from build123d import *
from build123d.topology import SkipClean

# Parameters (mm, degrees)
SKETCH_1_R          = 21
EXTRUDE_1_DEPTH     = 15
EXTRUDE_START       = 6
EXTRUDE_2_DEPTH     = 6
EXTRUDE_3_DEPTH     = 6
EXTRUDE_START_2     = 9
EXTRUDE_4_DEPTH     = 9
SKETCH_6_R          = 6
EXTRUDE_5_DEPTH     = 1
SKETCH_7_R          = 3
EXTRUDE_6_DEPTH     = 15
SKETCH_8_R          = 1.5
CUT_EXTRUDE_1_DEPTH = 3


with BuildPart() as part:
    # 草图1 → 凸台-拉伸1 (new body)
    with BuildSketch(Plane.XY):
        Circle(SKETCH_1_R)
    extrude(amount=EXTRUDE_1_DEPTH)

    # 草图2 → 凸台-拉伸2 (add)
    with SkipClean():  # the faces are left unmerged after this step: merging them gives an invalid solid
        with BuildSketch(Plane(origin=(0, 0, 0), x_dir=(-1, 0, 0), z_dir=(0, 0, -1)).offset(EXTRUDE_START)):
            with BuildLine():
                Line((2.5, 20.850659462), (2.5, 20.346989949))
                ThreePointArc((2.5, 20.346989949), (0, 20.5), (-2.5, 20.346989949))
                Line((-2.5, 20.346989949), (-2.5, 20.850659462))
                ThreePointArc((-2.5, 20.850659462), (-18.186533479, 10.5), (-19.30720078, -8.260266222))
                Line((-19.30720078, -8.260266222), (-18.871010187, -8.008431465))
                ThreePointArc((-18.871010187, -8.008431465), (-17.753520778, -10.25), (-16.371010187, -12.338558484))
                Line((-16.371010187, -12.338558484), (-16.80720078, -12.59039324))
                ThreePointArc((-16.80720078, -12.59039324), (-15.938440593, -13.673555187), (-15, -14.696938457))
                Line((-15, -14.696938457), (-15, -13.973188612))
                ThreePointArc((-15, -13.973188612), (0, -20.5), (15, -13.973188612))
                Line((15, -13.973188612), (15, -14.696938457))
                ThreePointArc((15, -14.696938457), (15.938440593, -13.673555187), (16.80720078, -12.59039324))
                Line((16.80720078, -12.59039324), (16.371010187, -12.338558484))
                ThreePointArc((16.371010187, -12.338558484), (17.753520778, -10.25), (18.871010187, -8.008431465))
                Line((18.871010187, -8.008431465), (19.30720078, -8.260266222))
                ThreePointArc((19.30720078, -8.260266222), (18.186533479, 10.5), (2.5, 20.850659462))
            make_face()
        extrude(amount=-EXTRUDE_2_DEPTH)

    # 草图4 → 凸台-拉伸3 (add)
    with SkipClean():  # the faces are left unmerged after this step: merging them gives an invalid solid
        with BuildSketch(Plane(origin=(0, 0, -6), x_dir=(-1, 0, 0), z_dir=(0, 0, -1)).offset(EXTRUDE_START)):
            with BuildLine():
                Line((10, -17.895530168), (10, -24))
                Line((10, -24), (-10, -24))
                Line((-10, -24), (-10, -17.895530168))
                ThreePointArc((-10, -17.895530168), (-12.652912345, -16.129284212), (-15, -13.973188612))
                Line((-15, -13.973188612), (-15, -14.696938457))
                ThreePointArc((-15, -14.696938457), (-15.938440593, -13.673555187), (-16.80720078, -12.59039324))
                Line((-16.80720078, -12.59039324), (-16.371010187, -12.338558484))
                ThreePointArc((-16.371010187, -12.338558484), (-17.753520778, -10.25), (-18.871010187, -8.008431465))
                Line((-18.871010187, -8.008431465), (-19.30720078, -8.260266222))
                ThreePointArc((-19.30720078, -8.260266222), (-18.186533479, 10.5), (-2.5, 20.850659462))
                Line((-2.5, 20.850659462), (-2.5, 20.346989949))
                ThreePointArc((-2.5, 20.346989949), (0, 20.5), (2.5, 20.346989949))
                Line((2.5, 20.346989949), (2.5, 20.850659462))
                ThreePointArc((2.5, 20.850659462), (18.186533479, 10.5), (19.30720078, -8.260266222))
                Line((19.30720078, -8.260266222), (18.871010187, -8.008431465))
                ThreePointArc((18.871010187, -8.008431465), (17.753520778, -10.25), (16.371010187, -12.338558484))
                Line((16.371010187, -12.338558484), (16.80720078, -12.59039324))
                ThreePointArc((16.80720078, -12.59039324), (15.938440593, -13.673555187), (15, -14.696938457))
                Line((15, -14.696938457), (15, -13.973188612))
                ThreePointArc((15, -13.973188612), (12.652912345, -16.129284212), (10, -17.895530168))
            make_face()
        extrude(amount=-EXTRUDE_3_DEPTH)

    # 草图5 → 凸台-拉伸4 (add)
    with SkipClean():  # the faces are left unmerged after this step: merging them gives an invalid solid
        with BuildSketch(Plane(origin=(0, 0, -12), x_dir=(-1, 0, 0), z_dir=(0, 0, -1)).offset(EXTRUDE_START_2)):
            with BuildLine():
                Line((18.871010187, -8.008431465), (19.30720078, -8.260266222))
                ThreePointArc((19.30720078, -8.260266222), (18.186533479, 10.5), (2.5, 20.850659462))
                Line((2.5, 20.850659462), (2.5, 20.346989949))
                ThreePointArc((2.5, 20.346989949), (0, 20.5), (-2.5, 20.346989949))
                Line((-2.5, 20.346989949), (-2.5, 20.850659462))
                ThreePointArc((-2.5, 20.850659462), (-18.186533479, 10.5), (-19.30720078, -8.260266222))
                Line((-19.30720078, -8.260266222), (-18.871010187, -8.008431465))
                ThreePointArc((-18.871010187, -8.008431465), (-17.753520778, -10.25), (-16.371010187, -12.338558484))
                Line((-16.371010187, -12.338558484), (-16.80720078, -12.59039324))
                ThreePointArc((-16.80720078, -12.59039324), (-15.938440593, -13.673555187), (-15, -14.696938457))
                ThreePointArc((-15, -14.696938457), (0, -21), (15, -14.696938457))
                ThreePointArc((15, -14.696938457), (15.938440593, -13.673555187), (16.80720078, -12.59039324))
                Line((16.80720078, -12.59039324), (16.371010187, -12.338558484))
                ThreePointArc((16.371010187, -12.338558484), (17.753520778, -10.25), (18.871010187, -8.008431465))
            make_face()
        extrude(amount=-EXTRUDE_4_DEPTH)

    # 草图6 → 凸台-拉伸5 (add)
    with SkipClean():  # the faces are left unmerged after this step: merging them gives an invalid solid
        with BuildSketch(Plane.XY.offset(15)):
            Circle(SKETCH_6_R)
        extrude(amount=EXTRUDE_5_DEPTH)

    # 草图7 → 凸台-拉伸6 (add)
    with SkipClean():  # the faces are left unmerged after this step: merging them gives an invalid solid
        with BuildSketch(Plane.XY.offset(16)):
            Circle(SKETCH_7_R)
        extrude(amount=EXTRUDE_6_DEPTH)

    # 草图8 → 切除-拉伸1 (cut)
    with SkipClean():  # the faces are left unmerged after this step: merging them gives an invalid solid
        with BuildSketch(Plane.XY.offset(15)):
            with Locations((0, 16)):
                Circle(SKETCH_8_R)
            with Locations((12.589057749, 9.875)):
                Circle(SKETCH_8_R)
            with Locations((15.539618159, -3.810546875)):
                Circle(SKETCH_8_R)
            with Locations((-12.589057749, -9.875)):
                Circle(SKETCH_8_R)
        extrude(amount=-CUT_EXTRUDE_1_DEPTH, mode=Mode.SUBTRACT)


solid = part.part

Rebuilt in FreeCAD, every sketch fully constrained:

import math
import FreeCAD as App
import Part
import Sketcher

V = App.Vector
Q = App.Units.Quantity

doc = App.newDocument("Part")
params = doc.addObject("Spreadsheet::Sheet", "Params")
for row, (alias, value) in enumerate([
    ("sketch1_diameter", "42 mm"),
    ("pad1_length", "15 mm"),
    ("sketch2_radius", "21 mm"),
    ("sketch2_radius2", "20.5 mm"),
    ("pad2_length", "6 mm"),
    ("sketch3_radius", "21 mm"),
    ("sketch3_radius2", "20.5 mm"),
    ("sketch3_width", "20 mm"),
    ("pad3_length", "6 mm"),
    ("sketch4_radius", "21 mm"),
    ("sketch4_radius2", "20.5 mm"),
    ("pad4_length", "9 mm"),
    ("sketch5_diameter", "12 mm"),
    ("pad5_length", "1 mm"),
    ("sketch6_diameter", "6 mm"),
    ("pad6_length", "15 mm"),
    ("sketch7_diameter", "3 mm"),
    ("pocket1_length", "3 mm"),
], start=1):
    params.set(f"A{row}", alias)
    params.set(f"B{row}", "=" + value)
    params.setAlias(f"B{row}", alias)

body = doc.addObject("PartDesign::Body", "Body")

# Sketch on XY plane
sketch1 = body.newObject("Sketcher::SketchObject", "Sketch")
sketch1.AttachmentSupport = (doc.getObject("XY_Plane"), [""])
sketch1.MapMode = "FlatFace"
sketch1.addGeometry(Part.Circle(V(0, 0, 0), V(0, 0, 1), 21), False)
sketch1.addConstraint([
    Sketcher.Constraint("Coincident", 0, 3, -1, 1),
    Sketcher.Constraint("Diameter", 0, 42.0),
])
sketch1.setExpression("Constraints[1]", "Params.sketch1_diameter")
pad1 = body.newObject("PartDesign::Pad", "Pad")
pad1.Profile = sketch1
pad1.setExpression("Length", "Params.pad1_length")

# Sketch on XY plane
sketch2 = body.newObject("Sketcher::SketchObject", "Sketch001")
sketch2.AttachmentSupport = (doc.getObject("XY_Plane"), [""])
sketch2.MapMode = "FlatFace"
sketch2.AttachmentOffset = App.Placement(V(0, 0, -6), App.Rotation())
sketch2.addGeometry([
    Part.LineSegment(V(-2.5, 20.850659, 0), V(-2.5, 20.34699, 0)),  # 0
    Part.ArcOfCircle(Part.Circle(V(0, 0, 0), V(0, 0, 1), 20.5), math.radians(82.995274), math.radians(97.004726)),  # 1
    Part.LineSegment(V(2.5, 20.34699, 0), V(2.5, 20.850659, 0)),  # 2
    Part.ArcOfCircle(Part.Circle(V(0, 0, 0), V(0, 0, 1), 21), math.radians(-23.162859), math.radians(83.162859)),  # 3
    Part.LineSegment(V(19.307201, -8.260266, 0), V(18.87101, -8.008431, 0)),  # 4
    Part.ArcOfCircle(Part.Circle(V(0, 0, 0), V(0, 0, 1), 20.5), math.radians(-37.004726), math.radians(-22.995274)),  # 5
    Part.LineSegment(V(16.37101, -12.338558, 0), V(16.807201, -12.590393, 0)),  # 6
    Part.ArcOfCircle(Part.Circle(V(0, 0, 0), V(0, 0, 1), 21), math.radians(-44.415309), math.radians(-36.837141)),  # 7
    Part.LineSegment(V(15, -14.696938, 0), V(15, -13.973189, 0)),  # 8
    Part.ArcOfCircle(Part.Circle(V(0, 0, 0), V(0, 0, 1), 20.5), math.radians(-137.029716), math.radians(-42.970284)),  # 9
    Part.LineSegment(V(-15, -13.973189, 0), V(-15, -14.696938, 0)),  # 10
    Part.ArcOfCircle(Part.Circle(V(0, 0, 0), V(0, 0, 1), 21), math.radians(-143.162859), math.radians(-135.584691)),  # 11
    Part.LineSegment(V(-16.807201, -12.590393, 0), V(-16.37101, -12.338558, 0)),  # 12
    Part.ArcOfCircle(Part.Circle(V(0, 0, 0), V(0, 0, 1), 20.5), math.radians(-157.004726), math.radians(-142.995274)),  # 13
    Part.LineSegment(V(-18.87101, -8.008431, 0), V(-19.307201, -8.260266, 0)),  # 14
    Part.ArcOfCircle(Part.Circle(V(0, 0, 0), V(0, 0, 1), 21), math.radians(96.837141), math.radians(203.162859)),  # 15
], False)
sketch2.addConstraint([
    Sketcher.Constraint("Coincident", 0, 2, 1, 2),
    Sketcher.Constraint("Coincident", 1, 1, 2, 1),
    Sketcher.Constraint("Coincident", 2, 2, 3, 2),
    Sketcher.Constraint("Coincident", 3, 1, 4, 1),
    Sketcher.Constraint("Coincident", 4, 2, 5, 2),
    Sketcher.Constraint("Coincident", 5, 1, 6, 1),
    Sketcher.Constraint("Coincident", 6, 2, 7, 2),
    Sketcher.Constraint("Coincident", 7, 1, 8, 1),
    Sketcher.Constraint("Coincident", 8, 2, 9, 2),
    Sketcher.Constraint("Coincident", 9, 1, 10, 1),
    Sketcher.Constraint("Coincident", 10, 2, 11, 2),
    Sketcher.Constraint("Coincident", 11, 1, 12, 1),
    Sketcher.Constraint("Coincident", 12, 2, 13, 2),
    Sketcher.Constraint("Coincident", 13, 1, 14, 1),
    Sketcher.Constraint("Coincident", 14, 2, 15, 2),
    Sketcher.Constraint("Coincident", 15, 1, 0, 1),
    Sketcher.Constraint("Vertical", 0),
    Sketcher.Constraint("Vertical", 2),
    Sketcher.Constraint("Vertical", 8),
    Sketcher.Constraint("Vertical", 10),
    Sketcher.Constraint("Coincident", 1, 3, -1, 1),
    Sketcher.Constraint("Coincident", 3, 3, -1, 1),
    Sketcher.Constraint("Coincident", 5, 3, -1, 1),
    Sketcher.Constraint("Coincident", 7, 3, -1, 1),
    Sketcher.Constraint("Coincident", 9, 3, -1, 1),
    Sketcher.Constraint("Coincident", 11, 3, -1, 1),
    Sketcher.Constraint("Coincident", 13, 3, -1, 1),
    Sketcher.Constraint("Coincident", 15, 3, -1, 1),
    Sketcher.Constraint("Equal", 1, 5),
    Sketcher.Constraint("Equal", 3, 7),
    Sketcher.Constraint("Equal", 5, 9),
    Sketcher.Constraint("Equal", 7, 11),
    Sketcher.Constraint("Equal", 9, 13),
    Sketcher.Constraint("Equal", 11, 15),
    Sketcher.Constraint("Parallel", 4, 6),
    Sketcher.Constraint("Parallel", 12, 14),
    Sketcher.Constraint("Horizontal", 0, 2, 1, 1),
    Sketcher.Constraint("Horizontal", 8, 2, 9, 1),
    Sketcher.Constraint("Horizontal", 6, 2, 11, 1),
    Sketcher.Constraint("Horizontal", 5, 1, 12, 2),
    Sketcher.Constraint("Horizontal", 4, 2, 13, 1),
    Sketcher.Constraint("Equal", 4, 6),
    Sketcher.Constraint("Radius", 3, 21.0),
    Sketcher.Constraint("Radius", 1, 20.5),
    Sketcher.Constraint("Angle", 4, Q("150 deg")),
    Sketcher.Constraint("DistanceX", -1, 1, 7, 1, 15.0),
    Sketcher.Constraint("DistanceX", 0, 2, 1, 1, 5.0),
    Sketcher.Constraint("DistanceX", 5, 1, 4, 2, 2.5),
])
sketch2.setExpression("Constraints[42]", "Params.sketch2_radius")
sketch2.setExpression("Constraints[43]", "Params.sketch2_radius2")
pad2 = body.newObject("PartDesign::Pad", "Pad001")
pad2.Profile = sketch2
pad2.setExpression("Length", "Params.pad2_length")

# Sketch on XY plane
sketch3 = body.newObject("Sketcher::SketchObject", "Sketch002")
sketch3.AttachmentSupport = (doc.getObject("XY_Plane"), [""])
sketch3.MapMode = "FlatFace"
sketch3.AttachmentOffset = App.Placement(V(0, 0, -12), App.Rotation())
sketch3.addGeometry([
    Part.LineSegment(V(-10, -24, 0), V(-10, -17.89553, 0)),  # 0
    Part.ArcOfCircle(Part.Circle(V(0, 0, 0), V(0, 0, 1), 20.5), math.radians(-137.029716), math.radians(-119.196404)),  # 1
    Part.LineSegment(V(-15, -13.973189, 0), V(-15, -14.696938, 0)),  # 2
    Part.ArcOfCircle(Part.Circle(V(0, 0, 0), V(0, 0, 1), 21), math.radians(-143.162859), math.radians(-135.584691)),  # 3
    Part.LineSegment(V(-16.807201, -12.590393, 0), V(-16.37101, -12.338558, 0)),  # 4
    Part.ArcOfCircle(Part.Circle(V(0, 0, 0), V(0, 0, 1), 20.5), math.radians(-157.004726), math.radians(-142.995274)),  # 5
    Part.LineSegment(V(-18.87101, -8.008431, 0), V(-19.307201, -8.260266, 0)),  # 6
    Part.ArcOfCircle(Part.Circle(V(0, 0, 0), V(0, 0, 1), 21), math.radians(96.837141), math.radians(203.162859)),  # 7
    Part.LineSegment(V(-2.5, 20.850659, 0), V(-2.5, 20.34699, 0)),  # 8
    Part.ArcOfCircle(Part.Circle(V(0, 0, 0), V(0, 0, 1), 20.5), math.radians(82.995274), math.radians(97.004726)),  # 9
    Part.LineSegment(V(2.5, 20.34699, 0), V(2.5, 20.850659, 0)),  # 10
    Part.ArcOfCircle(Part.Circle(V(0, 0, 0), V(0, 0, 1), 21), math.radians(-23.162859), math.radians(83.162859)),  # 11
    Part.LineSegment(V(19.307201, -8.260266, 0), V(18.87101, -8.008431, 0)),  # 12
    Part.ArcOfCircle(Part.Circle(V(0, 0, 0), V(0, 0, 1), 20.5), math.radians(-37.004726), math.radians(-22.995274)),  # 13
    Part.LineSegment(V(16.37101, -12.338558, 0), V(16.807201, -12.590393, 0)),  # 14
    Part.ArcOfCircle(Part.Circle(V(0, 0, 0), V(0, 0, 1), 21), math.radians(-44.415309), math.radians(-36.837141)),  # 15
    Part.LineSegment(V(15, -14.696938, 0), V(15, -13.973189, 0)),  # 16
    Part.ArcOfCircle(Part.Circle(V(0, 0, 0), V(0, 0, 1), 20.5), math.radians(-60.803596), math.radians(-42.970284)),  # 17
    Part.LineSegment(V(10, -17.89553, 0), V(10, -24, 0)),  # 18
    Part.LineSegment(V(10, -24, 0), V(-10, -24, 0)),  # 19
], False)
sketch3.addConstraint([
    Sketcher.Constraint("Coincident", 0, 2, 1, 2),
    Sketcher.Constraint("Coincident", 1, 1, 2, 1),
    Sketcher.Constraint("Coincident", 2, 2, 3, 2),
    Sketcher.Constraint("Coincident", 3, 1, 4, 1),
    Sketcher.Constraint("Coincident", 4, 2, 5, 2),
    Sketcher.Constraint("Coincident", 5, 1, 6, 1),
    Sketcher.Constraint("Coincident", 6, 2, 7, 2),
    Sketcher.Constraint("Coincident", 7, 1, 8, 1),
    Sketcher.Constraint("Coincident", 8, 2, 9, 2),
    Sketcher.Constraint("Coincident", 9, 1, 10, 1),
    Sketcher.Constraint("Coincident", 10, 2, 11, 2),
    Sketcher.Constraint("Coincident", 11, 1, 12, 1),
    Sketcher.Constraint("Coincident", 12, 2, 13, 2),
    Sketcher.Constraint("Coincident", 13, 1, 14, 1),
    Sketcher.Constraint("Coincident", 14, 2, 15, 2),
    Sketcher.Constraint("Coincident", 15, 1, 16, 1),
    Sketcher.Constraint("Coincident", 16, 2, 17, 2),
    Sketcher.Constraint("Coincident", 17, 1, 18, 1),
    Sketcher.Constraint("Coincident", 18, 2, 19, 1),
    Sketcher.Constraint("Coincident", 19, 2, 0, 1),
    Sketcher.Constraint("Vertical", 0),
    Sketcher.Constraint("Vertical", 2),
    Sketcher.Constraint("Vertical", 8),
    Sketcher.Constraint("Vertical", 10),
    Sketcher.Constraint("Vertical", 16),
    Sketcher.Constraint("Vertical", 18),
    Sketcher.Constraint("Horizontal", 19),
    Sketcher.Constraint("Coincident", 1, 3, -1, 1),
    Sketcher.Constraint("Coincident", 3, 3, -1, 1),
    Sketcher.Constraint("Coincident", 5, 3, -1, 1),
    Sketcher.Constraint("Coincident", 7, 3, -1, 1),
    Sketcher.Constraint("Coincident", 9, 3, -1, 1),
    Sketcher.Constraint("Coincident", 11, 3, -1, 1),
    Sketcher.Constraint("Coincident", 13, 3, -1, 1),
    Sketcher.Constraint("Coincident", 15, 3, -1, 1),
    Sketcher.Constraint("Coincident", 17, 3, -1, 1),
    Sketcher.Constraint("Equal", 1, 5),
    Sketcher.Constraint("Equal", 3, 7),
    Sketcher.Constraint("Equal", 5, 9),
    Sketcher.Constraint("Equal", 7, 11),
    Sketcher.Constraint("Equal", 9, 13),
    Sketcher.Constraint("Equal", 11, 15),
    Sketcher.Constraint("Equal", 13, 17),
    Sketcher.Constraint("Parallel", 4, 6),
    Sketcher.Constraint("Parallel", 12, 14),
    Sketcher.Constraint("Horizontal", 8, 2, 9, 1),
    Sketcher.Constraint("Horizontal", 6, 2, 11, 1),
    Sketcher.Constraint("Horizontal", 5, 1, 12, 2),
    Sketcher.Constraint("Horizontal", 4, 2, 13, 1),
    Sketcher.Constraint("Horizontal", 2, 2, 15, 1),
    Sketcher.Constraint("Horizontal", 0, 2, 17, 1),
    Sketcher.Constraint("Equal", 4, 6),
    Sketcher.Constraint("Radius", 3, 21.0),
    Sketcher.Constraint("Radius", 1, 20.5),
    Sketcher.Constraint("DistanceX", 19, 2, 19, 1, 20.0),
    Sketcher.Constraint("Angle", 4, Q("30 deg")),
    Sketcher.Constraint("DistanceX", 1, 1, -1, 1, 15.0),
    Sketcher.Constraint("DistanceY", 18, 2, -1, 1, 24.0),
    Sketcher.Constraint("DistanceX", 8, 2, 9, 1, 5.0),
    Sketcher.Constraint("DistanceX", 5, 1, 4, 2, 2.5),
])
sketch3.setExpression("Constraints[52]", "Params.sketch3_radius")
sketch3.setExpression("Constraints[53]", "Params.sketch3_radius2")
sketch3.setExpression("Constraints[54]", "Params.sketch3_width")
pad3 = body.newObject("PartDesign::Pad", "Pad002")
pad3.Profile = sketch3
pad3.setExpression("Length", "Params.pad3_length")

# Sketch on XY plane
sketch4 = body.newObject("Sketcher::SketchObject", "Sketch003")
sketch4.AttachmentSupport = (doc.getObject("XY_Plane"), [""])
sketch4.MapMode = "FlatFace"
sketch4.AttachmentOffset = App.Placement(V(0, 0, -21), App.Rotation())
sketch4.addGeometry([
    Part.LineSegment(V(-18.87101, -8.008431, 0), V(-19.307201, -8.260266, 0)),  # 0
    Part.ArcOfCircle(Part.Circle(V(0, 0, 0), V(0, 0, 1), 21), math.radians(96.837141), math.radians(203.162859)),  # 1
    Part.LineSegment(V(-2.5, 20.850659, 0), V(-2.5, 20.34699, 0)),  # 2
    Part.ArcOfCircle(Part.Circle(V(0, 0, 0), V(0, 0, 1), 20.5), math.radians(82.995274), math.radians(97.004726)),  # 3
    Part.LineSegment(V(2.5, 20.34699, 0), V(2.5, 20.850659, 0)),  # 4
    Part.ArcOfCircle(Part.Circle(V(0, 0, 0), V(0, 0, 1), 21), math.radians(-23.162859), math.radians(83.162859)),  # 5
    Part.LineSegment(V(19.307201, -8.260266, 0), V(18.87101, -8.008431, 0)),  # 6
    Part.ArcOfCircle(Part.Circle(V(0, 0, 0), V(0, 0, 1), 20.5), math.radians(-37.004726), math.radians(-22.995274)),  # 7
    Part.LineSegment(V(16.37101, -12.338558, 0), V(16.807201, -12.590393, 0)),  # 8
    Part.ArcOfCircle(Part.Circle(V(0, 0, 0), V(0, 0, 1), 21), math.radians(-44.415309), math.radians(-36.837141)),  # 9
    Part.ArcOfCircle(Part.Circle(V(0, 0, 0), V(0, 0, 1), 21), math.radians(-135.584691), math.radians(-44.415309)),  # 10
    Part.ArcOfCircle(Part.Circle(V(0, 0, 0), V(0, 0, 1), 21), math.radians(-143.162859), math.radians(-135.584691)),  # 11
    Part.LineSegment(V(-16.807201, -12.590393, 0), V(-16.37101, -12.338558, 0)),  # 12
    Part.ArcOfCircle(Part.Circle(V(0, 0, 0), V(0, 0, 1), 20.5), math.radians(-157.004726), math.radians(-142.995274)),  # 13
], False)
sketch4.addConstraint([
    Sketcher.Constraint("Coincident", 0, 2, 1, 2),
    Sketcher.Constraint("Coincident", 1, 1, 2, 1),
    Sketcher.Constraint("Coincident", 2, 2, 3, 2),
    Sketcher.Constraint("Coincident", 3, 1, 4, 1),
    Sketcher.Constraint("Coincident", 4, 2, 5, 2),
    Sketcher.Constraint("Coincident", 5, 1, 6, 1),
    Sketcher.Constraint("Coincident", 6, 2, 7, 2),
    Sketcher.Constraint("Coincident", 7, 1, 8, 1),
    Sketcher.Constraint("Coincident", 8, 2, 9, 2),
    Sketcher.Constraint("Tangent", 9, 1, 10, 2),
    Sketcher.Constraint("Tangent", 10, 1, 11, 2),
    Sketcher.Constraint("Coincident", 11, 1, 12, 1),
    Sketcher.Constraint("Coincident", 12, 2, 13, 2),
    Sketcher.Constraint("Coincident", 13, 1, 0, 1),
    Sketcher.Constraint("Vertical", 2),
    Sketcher.Constraint("Vertical", 4),
    Sketcher.Constraint("Coincident", 1, 3, -1, 1),
    Sketcher.Constraint("Coincident", 3, 3, -1, 1),
    Sketcher.Constraint("Coincident", 5, 3, -1, 1),
    Sketcher.Constraint("Coincident", 7, 3, -1, 1),
    Sketcher.Constraint("Coincident", 9, 3, -1, 1),
    Sketcher.Constraint("Coincident", 11, 3, -1, 1),
    Sketcher.Constraint("Coincident", 13, 3, -1, 1),
    Sketcher.Constraint("Equal", 1, 5),
    Sketcher.Constraint("Equal", 3, 7),
    Sketcher.Constraint("Equal", 5, 9),
    Sketcher.Constraint("Equal", 7, 13),
    Sketcher.Constraint("Parallel", 6, 8),
    Sketcher.Constraint("Parallel", 0, 12),
    Sketcher.Constraint("Horizontal", 2, 2, 3, 1),
    Sketcher.Constraint("Horizontal", 0, 2, 5, 1),
    Sketcher.Constraint("Horizontal", 9, 1, 10, 1),
    Sketcher.Constraint("Horizontal", 8, 2, 11, 1),
    Sketcher.Constraint("Horizontal", 7, 1, 12, 2),
    Sketcher.Constraint("Equal", 6, 8),
    Sketcher.Constraint("Radius", 1, 21.0),
    Sketcher.Constraint("Radius", 3, 20.5),
    Sketcher.Constraint("Angle", 0, Q("-150 deg")),
    Sketcher.Constraint("DistanceX", -1, 1, 9, 1, 15.0),
    Sketcher.Constraint("DistanceX", 2, 2, 3, 1, 5.0),
    Sketcher.Constraint("DistanceX", 7, 1, 6, 2, 2.5),
])
sketch4.setExpression("Constraints[35]", "Params.sketch4_radius")
sketch4.setExpression("Constraints[36]", "Params.sketch4_radius2")
pad4 = body.newObject("PartDesign::Pad", "Pad003")
pad4.Profile = sketch4
pad4.setExpression("Length", "Params.pad4_length")

# Sketch on XY plane
sketch5 = body.newObject("Sketcher::SketchObject", "Sketch004")
sketch5.AttachmentSupport = (doc.getObject("XY_Plane"), [""])
sketch5.MapMode = "FlatFace"
sketch5.AttachmentOffset = App.Placement(V(0, 0, 15), App.Rotation())
sketch5.addGeometry(Part.Circle(V(0, 0, 0), V(0, 0, 1), 6), False)
sketch5.addConstraint([
    Sketcher.Constraint("Coincident", 0, 3, -1, 1),
    Sketcher.Constraint("Diameter", 0, 12.0),
])
sketch5.setExpression("Constraints[1]", "Params.sketch5_diameter")
pad5 = body.newObject("PartDesign::Pad", "Pad004")
pad5.Profile = sketch5
pad5.setExpression("Length", "Params.pad5_length")

# Sketch on XY plane
sketch6 = body.newObject("Sketcher::SketchObject", "Sketch005")
sketch6.AttachmentSupport = (doc.getObject("XY_Plane"), [""])
sketch6.MapMode = "FlatFace"
sketch6.AttachmentOffset = App.Placement(V(0, 0, 16), App.Rotation())
sketch6.addGeometry(Part.Circle(V(0, 0, 0), V(0, 0, 1), 3), False)
sketch6.addConstraint([
    Sketcher.Constraint("Coincident", 0, 3, -1, 1),
    Sketcher.Constraint("Diameter", 0, 6.0),
])
sketch6.setExpression("Constraints[1]", "Params.sketch6_diameter")
pad6 = body.newObject("PartDesign::Pad", "Pad005")
pad6.Profile = sketch6
pad6.setExpression("Length", "Params.pad6_length")

# Sketch on XY plane
sketch7 = body.newObject("Sketcher::SketchObject", "Sketch006")
sketch7.AttachmentSupport = (doc.getObject("XY_Plane"), [""])
sketch7.MapMode = "FlatFace"
sketch7.AttachmentOffset = App.Placement(V(0, 0, 15), App.Rotation())
sketch7.addGeometry([
    Part.Circle(V(0, 16, 0), V(0, 0, 1), 1.5),
    Part.Circle(V(12.589058, 9.875, 0), V(0, 0, 1), 1.5),
    Part.Circle(V(15.539618, -3.810547, 0), V(0, 0, 1), 1.5),
    Part.Circle(V(-12.589058, -9.875, 0), V(0, 0, 1), 1.5),
], False)
sketch7.addConstraint([
    Sketcher.Constraint("Equal", 0, 1),
    Sketcher.Constraint("Equal", 1, 2),
    Sketcher.Constraint("Equal", 2, 3),
    Sketcher.Constraint("Symmetric", 1, 3, 3, 3, -1, 1),
    Sketcher.Constraint("PointOnObject", 0, 3, -2),
    Sketcher.Constraint("Diameter", 0, 3.0),
    Sketcher.Constraint("DistanceY", -1, 1, 0, 3, 16.0),
    Sketcher.Constraint("DistanceY", 3, 3, 1, 3, 19.75),
    Sketcher.Constraint("DistanceX", -1, 1, 2, 3, 15.539618),
    Sketcher.Constraint("DistanceX", 1, 3, 2, 3, 2.95056),
    Sketcher.Constraint("DistanceY", 2, 3, -1, 1, 3.810547),
])
sketch7.setExpression("Constraints[5]", "Params.sketch7_diameter")
pocket1 = body.newObject("PartDesign::Pocket", "Pocket")
pocket1.Profile = sketch7
pocket1.setExpression("Length", "Params.pocket1_length")

doc.recompute()
